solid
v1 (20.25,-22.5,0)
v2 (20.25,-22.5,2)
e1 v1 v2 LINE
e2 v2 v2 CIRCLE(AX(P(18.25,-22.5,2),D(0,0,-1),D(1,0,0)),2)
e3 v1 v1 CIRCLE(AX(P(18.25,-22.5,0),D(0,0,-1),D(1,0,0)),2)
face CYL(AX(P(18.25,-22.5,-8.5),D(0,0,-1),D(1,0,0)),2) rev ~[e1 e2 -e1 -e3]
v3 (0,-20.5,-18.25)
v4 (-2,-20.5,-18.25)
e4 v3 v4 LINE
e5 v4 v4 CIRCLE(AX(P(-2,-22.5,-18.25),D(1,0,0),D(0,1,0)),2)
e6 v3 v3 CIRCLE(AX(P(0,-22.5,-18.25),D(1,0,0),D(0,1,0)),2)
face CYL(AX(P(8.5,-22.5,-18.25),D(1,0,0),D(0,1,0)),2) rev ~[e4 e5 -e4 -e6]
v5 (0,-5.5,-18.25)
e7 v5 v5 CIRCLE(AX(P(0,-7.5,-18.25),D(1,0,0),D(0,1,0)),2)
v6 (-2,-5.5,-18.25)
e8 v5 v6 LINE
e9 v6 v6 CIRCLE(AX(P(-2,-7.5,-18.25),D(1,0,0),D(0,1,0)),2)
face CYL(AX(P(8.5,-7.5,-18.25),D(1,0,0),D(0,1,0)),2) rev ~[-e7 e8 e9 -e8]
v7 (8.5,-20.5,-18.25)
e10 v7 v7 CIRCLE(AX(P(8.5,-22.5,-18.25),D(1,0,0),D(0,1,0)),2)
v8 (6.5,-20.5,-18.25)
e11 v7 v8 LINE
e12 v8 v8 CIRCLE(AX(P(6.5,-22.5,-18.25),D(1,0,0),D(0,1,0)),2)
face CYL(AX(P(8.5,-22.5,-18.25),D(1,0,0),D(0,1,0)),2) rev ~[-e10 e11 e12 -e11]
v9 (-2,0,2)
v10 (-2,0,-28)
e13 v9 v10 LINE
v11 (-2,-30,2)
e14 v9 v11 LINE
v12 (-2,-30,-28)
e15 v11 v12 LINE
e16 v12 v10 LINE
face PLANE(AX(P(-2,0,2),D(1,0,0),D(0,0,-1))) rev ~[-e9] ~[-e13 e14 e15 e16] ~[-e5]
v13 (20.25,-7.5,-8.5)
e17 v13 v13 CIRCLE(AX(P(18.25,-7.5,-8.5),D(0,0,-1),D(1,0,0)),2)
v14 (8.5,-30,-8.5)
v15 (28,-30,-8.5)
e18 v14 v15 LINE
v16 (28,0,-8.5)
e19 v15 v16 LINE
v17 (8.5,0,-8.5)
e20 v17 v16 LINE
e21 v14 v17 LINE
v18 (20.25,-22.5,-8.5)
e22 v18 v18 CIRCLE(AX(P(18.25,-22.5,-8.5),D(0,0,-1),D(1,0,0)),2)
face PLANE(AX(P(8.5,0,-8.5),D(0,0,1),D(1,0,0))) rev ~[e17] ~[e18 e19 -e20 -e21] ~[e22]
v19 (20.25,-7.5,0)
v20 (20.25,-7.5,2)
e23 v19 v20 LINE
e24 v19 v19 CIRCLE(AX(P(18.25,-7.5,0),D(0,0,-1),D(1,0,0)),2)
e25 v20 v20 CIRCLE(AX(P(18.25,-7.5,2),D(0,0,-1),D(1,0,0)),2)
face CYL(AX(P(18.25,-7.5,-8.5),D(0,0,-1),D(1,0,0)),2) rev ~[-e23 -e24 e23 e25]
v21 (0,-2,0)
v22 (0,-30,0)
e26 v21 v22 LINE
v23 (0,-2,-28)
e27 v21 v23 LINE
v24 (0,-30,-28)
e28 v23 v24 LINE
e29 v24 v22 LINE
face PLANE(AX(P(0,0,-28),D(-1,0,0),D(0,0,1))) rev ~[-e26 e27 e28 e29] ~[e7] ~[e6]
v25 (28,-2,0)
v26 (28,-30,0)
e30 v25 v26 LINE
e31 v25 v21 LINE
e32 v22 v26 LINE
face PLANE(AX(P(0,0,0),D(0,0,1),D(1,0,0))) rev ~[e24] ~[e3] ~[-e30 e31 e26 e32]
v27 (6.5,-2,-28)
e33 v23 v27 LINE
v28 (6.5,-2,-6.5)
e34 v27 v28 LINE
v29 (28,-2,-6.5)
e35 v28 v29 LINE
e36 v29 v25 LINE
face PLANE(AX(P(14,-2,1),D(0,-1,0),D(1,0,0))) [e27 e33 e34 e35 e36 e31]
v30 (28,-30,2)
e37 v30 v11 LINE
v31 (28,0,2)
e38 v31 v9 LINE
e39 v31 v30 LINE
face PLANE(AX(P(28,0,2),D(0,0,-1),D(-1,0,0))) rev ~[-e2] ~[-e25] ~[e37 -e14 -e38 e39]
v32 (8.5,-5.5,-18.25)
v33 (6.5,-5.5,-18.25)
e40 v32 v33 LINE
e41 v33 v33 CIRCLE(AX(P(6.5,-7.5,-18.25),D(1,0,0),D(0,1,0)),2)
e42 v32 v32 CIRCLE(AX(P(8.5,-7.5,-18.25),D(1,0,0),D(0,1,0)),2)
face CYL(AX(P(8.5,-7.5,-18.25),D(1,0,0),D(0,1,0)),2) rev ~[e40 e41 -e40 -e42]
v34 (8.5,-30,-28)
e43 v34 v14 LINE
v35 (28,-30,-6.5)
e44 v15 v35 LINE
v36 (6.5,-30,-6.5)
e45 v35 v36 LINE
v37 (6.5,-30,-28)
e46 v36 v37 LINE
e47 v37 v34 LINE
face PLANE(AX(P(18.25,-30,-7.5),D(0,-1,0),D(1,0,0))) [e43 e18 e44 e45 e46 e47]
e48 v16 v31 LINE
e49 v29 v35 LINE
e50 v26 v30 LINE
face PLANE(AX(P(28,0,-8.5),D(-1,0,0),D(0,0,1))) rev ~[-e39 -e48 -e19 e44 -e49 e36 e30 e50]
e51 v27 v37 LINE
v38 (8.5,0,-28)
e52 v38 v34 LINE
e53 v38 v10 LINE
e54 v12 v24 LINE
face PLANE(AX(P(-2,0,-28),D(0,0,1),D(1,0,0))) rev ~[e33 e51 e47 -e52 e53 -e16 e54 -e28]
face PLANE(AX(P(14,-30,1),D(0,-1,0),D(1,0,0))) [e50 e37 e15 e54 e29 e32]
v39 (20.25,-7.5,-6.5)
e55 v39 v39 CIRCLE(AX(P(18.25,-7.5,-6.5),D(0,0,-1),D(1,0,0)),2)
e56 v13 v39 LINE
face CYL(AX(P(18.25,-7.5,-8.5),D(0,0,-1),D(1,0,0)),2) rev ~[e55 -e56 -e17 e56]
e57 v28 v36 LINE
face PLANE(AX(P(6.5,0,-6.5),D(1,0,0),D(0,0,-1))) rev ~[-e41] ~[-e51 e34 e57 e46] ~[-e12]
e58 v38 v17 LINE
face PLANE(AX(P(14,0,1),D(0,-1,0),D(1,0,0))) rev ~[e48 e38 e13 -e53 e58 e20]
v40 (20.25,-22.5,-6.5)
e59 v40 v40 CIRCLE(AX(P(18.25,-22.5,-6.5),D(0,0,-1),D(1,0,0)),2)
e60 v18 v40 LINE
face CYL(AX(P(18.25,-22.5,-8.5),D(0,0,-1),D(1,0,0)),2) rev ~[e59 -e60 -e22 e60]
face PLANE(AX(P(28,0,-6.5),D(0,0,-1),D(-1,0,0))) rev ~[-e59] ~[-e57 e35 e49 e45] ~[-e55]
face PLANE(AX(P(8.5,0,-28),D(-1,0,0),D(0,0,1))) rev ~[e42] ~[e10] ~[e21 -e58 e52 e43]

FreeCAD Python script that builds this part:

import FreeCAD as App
import Part
import Sketcher


def add_polygon(sketch, points):
    """Adds a closed chain of lines whose ends are joined by coincident constraints."""
    first, n = sketch.GeometryCount, len(points)
    for a, b in zip(points, points[1:] + points[:1]):
        sketch.addGeometry(Part.LineSegment(App.Vector(*a, 0), App.Vector(*b, 0)), False)
    for i in range(n):
        sketch.addConstraint(Sketcher.Constraint("Coincident", first + i, 2, first + (i + 1) % n, 1))

doc = App.newDocument("Part")
params = doc.addObject("Spreadsheet::Sheet", "Params")
for row, (alias, value) in enumerate([
    ("sketch1_width", "30 mm"),
    ("sketch1_width2", "10.5 mm"),
    ("pad1_length", "2 mm"),
    ("sketch2_width", "30 mm"),
    ("sketch2_width2", "2 mm"),
    ("sketch2_width3", "21.5 mm"),
    ("pad2_length", "30 mm"),
    ("sketch3_diameter", "4 mm"),
    ("pocket1_length", "25 mm"),
    ("sketch4_diameter", "4 mm"),
    ("pocket2_length", "25 mm"),
], start=1):
    params.set(f"A{row}", alias)
    params.set(f"B{row}", "=" + value)
    params.setAlias(f"B{row}", alias)

body = doc.addObject("PartDesign::Body", "Body")

sketch1 = body.newObject("Sketcher::SketchObject", "Sketch")
sketch1.AttachmentSupport = (doc.getObject("XZ_Plane"), [""])
sketch1.MapMode = "FlatFace"
add_polygon(sketch1, [(28, -8), (28, 2), (-2, 2), (-2, -28), (8, -28), (8, -8)])
sketch1.addConstraint([
    Sketcher.Constraint("Vertical", 0),
    Sketcher.Constraint("Horizontal", 1),
    Sketcher.Constraint("Vertical", 2),
    Sketcher.Constraint("Horizontal", 3),
    Sketcher.Constraint("Vertical", 4),
    Sketcher.Constraint("Horizontal", 5),
    Sketcher.Constraint("Equal", 3, 0),
    Sketcher.Constraint("Equal", 1, 2),
    Sketcher.Constraint("DistanceX", 1, 2, 1, 1, 30.0),
    Sketcher.Constraint("DistanceX", 3, 1, 3, 2, 10.5),
    Sketcher.Constraint("DistanceX", -1, 1, 0, 2, 28.0),
    Sketcher.Constraint("DistanceY", -1, 1, 0, 2, 2.0),
])
sketch1.setExpression("Constraints[14]", "Params.sketch1_width")
sketch1.setExpression("Constraints[15]", "Params.sketch1_width2")
pad1 = body.newObject("PartDesign::Pad", "Pad")
pad1.Profile = sketch1
pad1.setExpression("Length", "Params.pad1_length")

sketch2 = body.newObject("Sketcher::SketchObject", "Sketch001")
sketch2.AttachmentSupport = (doc.getObject("XZ_Plane"), [""])
sketch2.MapMode = "FlatFace"
add_polygon(sketch2, [(28, 0), (28, 2), (-2, 2), (-2, -28), (0, -28), (0, 0)])
add_polygon(sketch2, [(28, -8.5), (28, -6.5), (6.5, -6.5), (6.5, -28), (8.5, -28), (8.5, -8.5)])
sketch2.addConstraint([
    Sketcher.Constraint("Vertical", 0),
    Sketcher.Constraint("Horizontal", 1),
    Sketcher.Constraint("Vertical", 2),
    Sketcher.Constraint("Horizontal", 3),
    Sketcher.Constraint("Vertical", 4),
    Sketcher.Constraint("Horizontal", 5),
    Sketcher.Constraint("Vertical", 6),
    Sketcher.Constraint("Horizontal", 7),
    Sketcher.Constraint("Vertical", 8),
    Sketcher.Constraint("Horizontal", 9),
    Sketcher.Constraint("Vertical", 10),
    Sketcher.Constraint("Horizontal", 11),
    Sketcher.Constraint("Coincident", 4, 2, -1, 1),
    Sketcher.Constraint("Horizontal", 3, 2, 8, 2),
    Sketcher.Constraint("Vertical", 5, 2, 6, 2),
    Sketcher.Constraint("Equal", 3, 9),
    Sketcher.Constraint("Equal", 9, 0),
    Sketcher.Constraint("Equal", 1, 2),
    Sketcher.Constraint("Equal", 0, 6),
    Sketcher.Constraint("Equal", 7, 8),
    Sketcher.Constraint("DistanceX", 1, 2, 1, 1, 30.0),
    Sketcher.Constraint("DistanceX", 3, 1, 3, 2, 2.0),
    Sketcher.Constraint("DistanceX", 7, 2, 7, 1, 21.5),
])
sketch2.setExpression("Constraints[32]", "Params.sketch2_width")
sketch2.setExpression("Constraints[33]", "Params.sketch2_width2")
sketch2.setExpression("Constraints[34]", "Params.sketch2_width3")
pad2 = body.newObject("PartDesign::Pad", "Pad001")
pad2.Profile = sketch2
pad2.setExpression("Length", "Params.pad2_length")

sketch3 = body.newObject("Sketcher::SketchObject", "Sketch002")
sketch3.AttachmentSupport = (doc.getObject("XY_Plane"), [""])
sketch3.MapMode = "FlatFace"
sketch3.AttachmentOffset = App.Placement(App.Vector(0, 0, -8.5), App.Rotation())
sketch3.addGeometry([
    Part.Circle(App.Vector(18.2, -22.5, 0), App.Vector(0, 0, 1), 2),
    Part.Circle(App.Vector(18.2, -7.5, 0), App.Vector(0, 0, 1), 2),
], False)
sketch3.addConstraint([
    Sketcher.Constraint("Equal", 0, 1),
    Sketcher.Constraint("Vertical", 0, 3, 1, 3),
    Sketcher.Constraint("Diameter", 0, 4.0),
    Sketcher.Constraint("DistanceY", 0, 3, 1, 3, 15.0),
    Sketcher.Constraint("DistanceY", 0, 3, -1, 1, 22.5),
    Sketcher.Constraint("DistanceX", -1, 1, 0, 3, 18.25),
])
sketch3.setExpression("Constraints[2]", "Params.sketch3_diameter")
pocket1 = body.newObject("PartDesign::Pocket", "Pocket")
pocket1.Profile = sketch3
pocket1.setExpression("Length", "Params.pocket1_length")
pocket1.Reversed = True

sketch4 = body.newObject("Sketcher::SketchObject", "Sketch003")
sketch4.AttachmentSupport = (doc.getObject("YZ_Plane"), [""])
sketch4.MapMode = "FlatFace"
sketch4.AttachmentOffset = App.Placement(App.Vector(0, 0, 8.5), App.Rotation())
sketch4.addGeometry([
    Part.Circle(App.Vector(-22.5, -18.2, 0), App.Vector(0, 0, 1), 2),
    Part.Circle(App.Vector(-7.5, -18.2, 0), App.Vector(0, 0, 1), 2),
], False)
sketch4.addConstraint([
    Sketcher.Constraint("Equal", 0, 1),
    Sketcher.Constraint("Horizontal", 0, 3, 1, 3),
    Sketcher.Constraint("Diameter", 0, 4.0),
    Sketcher.Constraint("DistanceX", 0, 3, 1, 3, 15.0),
    Sketcher.Constraint("DistanceX", 0, 3, -1, 1, 22.5),
    Sketcher.Constraint("DistanceY", 0, 3, -1, 1, 18.25),
])
sketch4.setExpression("Constraints[2]", "Params.sketch4_diameter")
pocket2 = body.newObject("PartDesign::Pocket", "Pocket001")
pocket2.Profile = sketch4
pocket2.setExpression("Length", "Params.pocket2_length")

doc.recompute()
